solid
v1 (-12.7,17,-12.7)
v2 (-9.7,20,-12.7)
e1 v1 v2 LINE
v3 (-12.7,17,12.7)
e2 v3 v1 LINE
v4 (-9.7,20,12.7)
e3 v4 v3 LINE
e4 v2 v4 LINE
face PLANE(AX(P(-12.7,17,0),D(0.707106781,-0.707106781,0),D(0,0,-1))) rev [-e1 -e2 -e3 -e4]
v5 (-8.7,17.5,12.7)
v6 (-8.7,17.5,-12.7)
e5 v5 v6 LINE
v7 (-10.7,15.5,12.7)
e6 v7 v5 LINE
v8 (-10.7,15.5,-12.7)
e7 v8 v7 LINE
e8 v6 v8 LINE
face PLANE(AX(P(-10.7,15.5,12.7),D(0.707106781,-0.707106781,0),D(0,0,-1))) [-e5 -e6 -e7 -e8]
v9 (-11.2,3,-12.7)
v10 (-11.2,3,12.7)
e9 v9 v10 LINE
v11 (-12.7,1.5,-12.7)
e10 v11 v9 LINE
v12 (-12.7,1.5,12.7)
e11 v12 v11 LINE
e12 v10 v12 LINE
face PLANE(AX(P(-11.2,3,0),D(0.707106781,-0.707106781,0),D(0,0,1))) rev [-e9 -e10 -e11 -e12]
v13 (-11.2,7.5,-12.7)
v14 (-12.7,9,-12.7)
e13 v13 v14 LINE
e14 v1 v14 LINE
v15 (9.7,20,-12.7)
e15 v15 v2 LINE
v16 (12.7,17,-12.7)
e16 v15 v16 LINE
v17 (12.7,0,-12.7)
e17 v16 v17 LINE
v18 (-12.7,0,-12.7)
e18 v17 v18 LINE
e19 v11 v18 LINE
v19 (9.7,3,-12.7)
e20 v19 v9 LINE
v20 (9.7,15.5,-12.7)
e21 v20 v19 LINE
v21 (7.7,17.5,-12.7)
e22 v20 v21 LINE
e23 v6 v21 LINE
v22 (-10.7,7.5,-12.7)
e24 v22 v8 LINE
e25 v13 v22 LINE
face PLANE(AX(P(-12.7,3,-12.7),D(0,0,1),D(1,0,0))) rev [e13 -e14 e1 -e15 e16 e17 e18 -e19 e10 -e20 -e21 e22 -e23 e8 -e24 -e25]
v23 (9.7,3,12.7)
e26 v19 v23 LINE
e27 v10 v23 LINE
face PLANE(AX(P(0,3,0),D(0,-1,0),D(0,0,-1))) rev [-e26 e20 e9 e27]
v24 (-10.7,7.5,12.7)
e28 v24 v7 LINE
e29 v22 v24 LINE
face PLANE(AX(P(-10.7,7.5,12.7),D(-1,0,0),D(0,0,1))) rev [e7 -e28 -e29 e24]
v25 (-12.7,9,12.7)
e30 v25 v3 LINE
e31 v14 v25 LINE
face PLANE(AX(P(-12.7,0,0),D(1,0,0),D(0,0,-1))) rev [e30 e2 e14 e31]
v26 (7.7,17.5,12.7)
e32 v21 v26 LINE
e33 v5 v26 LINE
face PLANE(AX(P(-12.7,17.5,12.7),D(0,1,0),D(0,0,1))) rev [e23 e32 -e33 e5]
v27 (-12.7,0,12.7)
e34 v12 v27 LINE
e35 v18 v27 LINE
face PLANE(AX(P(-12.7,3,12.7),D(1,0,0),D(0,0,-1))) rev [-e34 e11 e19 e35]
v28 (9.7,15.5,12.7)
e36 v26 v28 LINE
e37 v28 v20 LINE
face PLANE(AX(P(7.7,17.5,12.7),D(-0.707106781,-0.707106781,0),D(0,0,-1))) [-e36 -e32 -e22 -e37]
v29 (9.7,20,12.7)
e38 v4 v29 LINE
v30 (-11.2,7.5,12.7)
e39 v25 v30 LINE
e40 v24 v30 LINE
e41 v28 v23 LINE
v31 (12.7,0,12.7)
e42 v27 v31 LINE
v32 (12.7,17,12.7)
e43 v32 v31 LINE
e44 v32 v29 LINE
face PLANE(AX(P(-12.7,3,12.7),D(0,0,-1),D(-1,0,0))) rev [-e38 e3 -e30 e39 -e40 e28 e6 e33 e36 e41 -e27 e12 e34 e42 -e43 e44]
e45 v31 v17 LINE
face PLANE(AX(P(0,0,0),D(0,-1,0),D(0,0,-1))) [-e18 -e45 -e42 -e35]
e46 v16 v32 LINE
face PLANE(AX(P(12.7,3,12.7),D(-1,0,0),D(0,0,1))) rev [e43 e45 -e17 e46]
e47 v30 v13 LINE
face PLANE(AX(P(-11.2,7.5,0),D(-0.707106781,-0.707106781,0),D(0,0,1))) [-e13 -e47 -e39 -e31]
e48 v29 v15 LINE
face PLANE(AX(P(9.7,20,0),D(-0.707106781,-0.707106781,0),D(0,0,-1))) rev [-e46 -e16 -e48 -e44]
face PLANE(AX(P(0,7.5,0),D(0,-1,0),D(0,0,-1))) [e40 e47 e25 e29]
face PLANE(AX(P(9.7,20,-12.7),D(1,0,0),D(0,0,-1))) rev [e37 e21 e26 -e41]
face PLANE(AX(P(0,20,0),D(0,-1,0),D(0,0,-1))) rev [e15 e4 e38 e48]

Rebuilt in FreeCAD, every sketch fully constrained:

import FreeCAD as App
import Part
import Sketcher


def edges_at(feature, points):
    """Names of the edges that pass closest to the given points."""
    edges = feature.Shape.Edges
    near = lambda p: min(range(len(edges)), key=lambda i: edges[i].distToShape(Part.Vertex(*p))[0])
    return sorted({f"Edge{near(p) + 1}" for p in points})

doc = App.newDocument("Part")
body = doc.addObject("PartDesign::Body", "Body")

sketch1 = body.newObject("Sketcher::SketchObject", "Sketch")
sketch1.AttachmentSupport = (doc.getObject("XZ_Plane"), [""])
sketch1.MapMode = "FlatFace"
sketch1.addGeometry(Part.LineSegment(App.Vector(-12.7, -12.7, 0), App.Vector(-12.7, 12.7, 0)), False)
sketch1.addGeometry(Part.LineSegment(App.Vector(-12.7, 12.7, 0), App.Vector(12.7, 12.7, 0)), False)
sketch1.addGeometry(Part.LineSegment(App.Vector(12.7, 12.7, 0), App.Vector(12.7, -12.7, 0)), False)
sketch1.addGeometry(Part.LineSegment(App.Vector(12.7, -12.7, 0), App.Vector(-12.7, -12.7, 0)), False)
sketch1.addConstraint(Sketcher.Constraint("Coincident", 0, 2, 1, 1))
sketch1.addConstraint(Sketcher.Constraint("Coincident", 1, 2, 2, 1))
sketch1.addConstraint(Sketcher.Constraint("Coincident", 2, 2, 3, 1))
sketch1.addConstraint(Sketcher.Constraint("Coincident", 3, 2, 0, 1))
sketch1.addConstraint(Sketcher.Constraint("Vertical", 0))
sketch1.addConstraint(Sketcher.Constraint("Horizontal", 1))
sketch1.addConstraint(Sketcher.Constraint("Vertical", 2))
sketch1.addConstraint(Sketcher.Constraint("Horizontal", 3))
sketch1.addConstraint(Sketcher.Constraint("Symmetric", 0, 2, 2, 2, -1, 1))
sketch1.addConstraint(Sketcher.Constraint("Equal", 3, 0))
sketch1.addConstraint(Sketcher.Constraint("DistanceX", 1, 1, 1, 2, 25.4))
pad1 = body.newObject("PartDesign::Pad", "Pad")
pad1.Profile = sketch1
pad1.Length = 3
pad1.Reversed = True

sketch2 = body.newObject("Sketcher::SketchObject", "Sketch001")
sketch2.AttachmentSupport = (doc.getObject("XZ_Plane"), [""])
sketch2.MapMode = "FlatFace"
sketch2.AttachmentOffset = App.Placement(App.Vector(0, 0, -3), App.Rotation())
sketch2.addGeometry(Part.LineSegment(App.Vector(9.7, -12.7, 0), App.Vector(9.7, 12.7, 0)), False)
sketch2.addGeometry(Part.LineSegment(App.Vector(9.7, 12.7, 0), App.Vector(12.7, 12.7, 0)), False)
sketch2.addGeometry(Part.LineSegment(App.Vector(12.7, 12.7, 0), App.Vector(12.7, -12.7, 0)), False)
sketch2.addGeometry(Part.LineSegment(App.Vector(12.7, -12.7, 0), App.Vector(9.7, -12.7, 0)), False)
sketch2.addConstraint(Sketcher.Constraint("Coincident", 0, 2, 1, 1))
sketch2.addConstraint(Sketcher.Constraint("Coincident", 1, 2, 2, 1))
sketch2.addConstraint(Sketcher.Constraint("Coincident", 2, 2, 3, 1))
sketch2.addConstraint(Sketcher.Constraint("Coincident", 3, 2, 0, 1))
sketch2.addConstraint(Sketcher.Constraint("Vertical", 0))
sketch2.addConstraint(Sketcher.Constraint("Horizontal", 1))
sketch2.addConstraint(Sketcher.Constraint("Vertical", 2))
sketch2.addConstraint(Sketcher.Constraint("Horizontal", 3))
sketch2.addConstraint(Sketcher.Constraint("DistanceX", 1, 1, 1, 2, 3.0))
sketch2.addConstraint(Sketcher.Constraint("DistanceY", 0, 1, 0, 2, 25.4))
sketch2.addConstraint(Sketcher.Constraint("DistanceX", -1, 1, 0, 2, 9.7))
sketch2.addConstraint(Sketcher.Constraint("DistanceY", -1, 1, 0, 2, 12.7))
pad2 = body.newObject("PartDesign::Pad", "Pad001")
pad2.Profile = sketch2
pad2.Length = 17
pad2.Reversed = True

sketch3 = body.newObject("Sketcher::SketchObject", "Sketch002")
sketch3.AttachmentSupport = (doc.getObject("YZ_Plane"), [""])
sketch3.MapMode = "FlatFace"
sketch3.AttachmentOffset = App.Placement(App.Vector(0, 0, 9.7), App.Rotation())
sketch3.addGeometry(Part.LineSegment(App.Vector(20, -12.7, 0), App.Vector(17.5, -12.7, 0)), False)
sketch3.addGeometry(Part.LineSegment(App.Vector(17.5, -12.7, 0), App.Vector(17.5, 12.7, 0)), False)
sketch3.addGeometry(Part.LineSegment(App.Vector(17.5, 12.7, 0), App.Vector(20, 12.7, 0)), False)
sketch3.addGeometry(Part.LineSegment(App.Vector(20, 12.7, 0), App.Vector(20, -12.7, 0)), False)
sketch3.addConstraint(Sketcher.Constraint("Coincident", 0, 2, 1, 1))
sketch3.addConstraint(Sketcher.Constraint("Coincident", 1, 2, 2, 1))
sketch3.addConstraint(Sketcher.Constraint("Coincident", 2, 2, 3, 1))
sketch3.addConstraint(Sketcher.Constraint("Coincident", 3, 2, 0, 1))
sketch3.addConstraint(Sketcher.Constraint("Horizontal", 0))
sketch3.addConstraint(Sketcher.Constraint("Vertical", 1))
sketch3.addConstraint(Sketcher.Constraint("Horizontal", 2))
sketch3.addConstraint(Sketcher.Constraint("Vertical", 3))
sketch3.addConstraint(Sketcher.Constraint("DistanceX", 0, 2, 0, 1, 2.5))
sketch3.addConstraint(Sketcher.Constraint("DistanceY", 1, 1, 1, 2, 25.4))
sketch3.addConstraint(Sketcher.Constraint("DistanceX", -1, 1, 2, 2, 20.0))
sketch3.addConstraint(Sketcher.Constraint("DistanceY", 0, 2, -1, 1, 12.7))
pad3 = body.newObject("PartDesign::Pad", "Pad002")
pad3.Profile = sketch3
pad3.Length = 22.4
pad3.Reversed = True

sketch4 = body.newObject("Sketcher::SketchObject", "Sketch003")
sketch4.AttachmentSupport = (doc.getObject("XZ_Plane"), [""])
sketch4.MapMode = "FlatFace"
sketch4.AttachmentOffset = App.Placement(App.Vector(0, 0, -17.5), App.Rotation())
sketch4.addGeometry(Part.LineSegment(App.Vector(-12.7, 12.7, 0), App.Vector(-12.7, -12.7, 0)), False)
sketch4.addGeometry(Part.LineSegment(App.Vector(-12.7, -12.7, 0), App.Vector(-10.7, -12.7, 0)), False)
sketch4.addGeometry(Part.LineSegment(App.Vector(-10.7, -12.7, 0), App.Vector(-10.7, 12.7, 0)), False)
sketch4.addGeometry(Part.LineSegment(App.Vector(-10.7, 12.7, 0), App.Vector(-12.7, 12.7, 0)), False)
sketch4.addConstraint(Sketcher.Constraint("Coincident", 0, 2, 1, 1))
sketch4.addConstraint(Sketcher.Constraint("Coincident", 1, 2, 2, 1))
sketch4.addConstraint(Sketcher.Constraint("Coincident", 2, 2, 3, 1))
sketch4.addConstraint(Sketcher.Constraint("Coincident", 3, 2, 0, 1))
sketch4.addConstraint(Sketcher.Constraint("Vertical", 0))
sketch4.addConstraint(Sketcher.Constraint("Horizontal", 1))
sketch4.addConstraint(Sketcher.Constraint("Vertical", 2))
sketch4.addConstraint(Sketcher.Constraint("Horizontal", 3))
sketch4.addConstraint(Sketcher.Constraint("DistanceX", 1, 1, 1, 2, 2.0))
sketch4.addConstraint(Sketcher.Constraint("DistanceY", 0, 2, 0, 1, 25.4))
sketch4.addConstraint(Sketcher.Constraint("DistanceX", 0, 2, -1, 1, 12.7))
sketch4.addConstraint(Sketcher.Constraint("DistanceY", 0, 2, -1, 1, 12.7))
pad4 = body.newObject("PartDesign::Pad", "Pad003")
pad4.Profile = sketch4
pad4.Length = 10
doc.recompute()

chamfer = body.newObject("PartDesign::Chamfer", "Chamfer")
chamfer.Base = (pad4, edges_at(pad4, [(-12.7, 7.5, 0)]))
chamfer.Size = 1.5
doc.recompute()

chamfer2 = body.newObject("PartDesign::Chamfer", "Chamfer001")
chamfer2.Base = (chamfer, edges_at(chamfer, [(12.7, 20, 0), (-12.7, 20, 0)]))
chamfer2.Size = 3
doc.recompute()

chamfer3 = body.newObject("PartDesign::Chamfer", "Chamfer002")
chamfer3.Base = (chamfer2, edges_at(chamfer2, [(9.7, 17.5, 0), (-10.7, 17.5, 0)]))
chamfer3.Size = 2
doc.recompute()

chamfer4 = body.newObject("PartDesign::Chamfer", "Chamfer003")
chamfer4.Base = (chamfer3, edges_at(chamfer3, [(-12.7, 3, 0)]))
chamfer4.Size = 1.5

doc.recompute()
